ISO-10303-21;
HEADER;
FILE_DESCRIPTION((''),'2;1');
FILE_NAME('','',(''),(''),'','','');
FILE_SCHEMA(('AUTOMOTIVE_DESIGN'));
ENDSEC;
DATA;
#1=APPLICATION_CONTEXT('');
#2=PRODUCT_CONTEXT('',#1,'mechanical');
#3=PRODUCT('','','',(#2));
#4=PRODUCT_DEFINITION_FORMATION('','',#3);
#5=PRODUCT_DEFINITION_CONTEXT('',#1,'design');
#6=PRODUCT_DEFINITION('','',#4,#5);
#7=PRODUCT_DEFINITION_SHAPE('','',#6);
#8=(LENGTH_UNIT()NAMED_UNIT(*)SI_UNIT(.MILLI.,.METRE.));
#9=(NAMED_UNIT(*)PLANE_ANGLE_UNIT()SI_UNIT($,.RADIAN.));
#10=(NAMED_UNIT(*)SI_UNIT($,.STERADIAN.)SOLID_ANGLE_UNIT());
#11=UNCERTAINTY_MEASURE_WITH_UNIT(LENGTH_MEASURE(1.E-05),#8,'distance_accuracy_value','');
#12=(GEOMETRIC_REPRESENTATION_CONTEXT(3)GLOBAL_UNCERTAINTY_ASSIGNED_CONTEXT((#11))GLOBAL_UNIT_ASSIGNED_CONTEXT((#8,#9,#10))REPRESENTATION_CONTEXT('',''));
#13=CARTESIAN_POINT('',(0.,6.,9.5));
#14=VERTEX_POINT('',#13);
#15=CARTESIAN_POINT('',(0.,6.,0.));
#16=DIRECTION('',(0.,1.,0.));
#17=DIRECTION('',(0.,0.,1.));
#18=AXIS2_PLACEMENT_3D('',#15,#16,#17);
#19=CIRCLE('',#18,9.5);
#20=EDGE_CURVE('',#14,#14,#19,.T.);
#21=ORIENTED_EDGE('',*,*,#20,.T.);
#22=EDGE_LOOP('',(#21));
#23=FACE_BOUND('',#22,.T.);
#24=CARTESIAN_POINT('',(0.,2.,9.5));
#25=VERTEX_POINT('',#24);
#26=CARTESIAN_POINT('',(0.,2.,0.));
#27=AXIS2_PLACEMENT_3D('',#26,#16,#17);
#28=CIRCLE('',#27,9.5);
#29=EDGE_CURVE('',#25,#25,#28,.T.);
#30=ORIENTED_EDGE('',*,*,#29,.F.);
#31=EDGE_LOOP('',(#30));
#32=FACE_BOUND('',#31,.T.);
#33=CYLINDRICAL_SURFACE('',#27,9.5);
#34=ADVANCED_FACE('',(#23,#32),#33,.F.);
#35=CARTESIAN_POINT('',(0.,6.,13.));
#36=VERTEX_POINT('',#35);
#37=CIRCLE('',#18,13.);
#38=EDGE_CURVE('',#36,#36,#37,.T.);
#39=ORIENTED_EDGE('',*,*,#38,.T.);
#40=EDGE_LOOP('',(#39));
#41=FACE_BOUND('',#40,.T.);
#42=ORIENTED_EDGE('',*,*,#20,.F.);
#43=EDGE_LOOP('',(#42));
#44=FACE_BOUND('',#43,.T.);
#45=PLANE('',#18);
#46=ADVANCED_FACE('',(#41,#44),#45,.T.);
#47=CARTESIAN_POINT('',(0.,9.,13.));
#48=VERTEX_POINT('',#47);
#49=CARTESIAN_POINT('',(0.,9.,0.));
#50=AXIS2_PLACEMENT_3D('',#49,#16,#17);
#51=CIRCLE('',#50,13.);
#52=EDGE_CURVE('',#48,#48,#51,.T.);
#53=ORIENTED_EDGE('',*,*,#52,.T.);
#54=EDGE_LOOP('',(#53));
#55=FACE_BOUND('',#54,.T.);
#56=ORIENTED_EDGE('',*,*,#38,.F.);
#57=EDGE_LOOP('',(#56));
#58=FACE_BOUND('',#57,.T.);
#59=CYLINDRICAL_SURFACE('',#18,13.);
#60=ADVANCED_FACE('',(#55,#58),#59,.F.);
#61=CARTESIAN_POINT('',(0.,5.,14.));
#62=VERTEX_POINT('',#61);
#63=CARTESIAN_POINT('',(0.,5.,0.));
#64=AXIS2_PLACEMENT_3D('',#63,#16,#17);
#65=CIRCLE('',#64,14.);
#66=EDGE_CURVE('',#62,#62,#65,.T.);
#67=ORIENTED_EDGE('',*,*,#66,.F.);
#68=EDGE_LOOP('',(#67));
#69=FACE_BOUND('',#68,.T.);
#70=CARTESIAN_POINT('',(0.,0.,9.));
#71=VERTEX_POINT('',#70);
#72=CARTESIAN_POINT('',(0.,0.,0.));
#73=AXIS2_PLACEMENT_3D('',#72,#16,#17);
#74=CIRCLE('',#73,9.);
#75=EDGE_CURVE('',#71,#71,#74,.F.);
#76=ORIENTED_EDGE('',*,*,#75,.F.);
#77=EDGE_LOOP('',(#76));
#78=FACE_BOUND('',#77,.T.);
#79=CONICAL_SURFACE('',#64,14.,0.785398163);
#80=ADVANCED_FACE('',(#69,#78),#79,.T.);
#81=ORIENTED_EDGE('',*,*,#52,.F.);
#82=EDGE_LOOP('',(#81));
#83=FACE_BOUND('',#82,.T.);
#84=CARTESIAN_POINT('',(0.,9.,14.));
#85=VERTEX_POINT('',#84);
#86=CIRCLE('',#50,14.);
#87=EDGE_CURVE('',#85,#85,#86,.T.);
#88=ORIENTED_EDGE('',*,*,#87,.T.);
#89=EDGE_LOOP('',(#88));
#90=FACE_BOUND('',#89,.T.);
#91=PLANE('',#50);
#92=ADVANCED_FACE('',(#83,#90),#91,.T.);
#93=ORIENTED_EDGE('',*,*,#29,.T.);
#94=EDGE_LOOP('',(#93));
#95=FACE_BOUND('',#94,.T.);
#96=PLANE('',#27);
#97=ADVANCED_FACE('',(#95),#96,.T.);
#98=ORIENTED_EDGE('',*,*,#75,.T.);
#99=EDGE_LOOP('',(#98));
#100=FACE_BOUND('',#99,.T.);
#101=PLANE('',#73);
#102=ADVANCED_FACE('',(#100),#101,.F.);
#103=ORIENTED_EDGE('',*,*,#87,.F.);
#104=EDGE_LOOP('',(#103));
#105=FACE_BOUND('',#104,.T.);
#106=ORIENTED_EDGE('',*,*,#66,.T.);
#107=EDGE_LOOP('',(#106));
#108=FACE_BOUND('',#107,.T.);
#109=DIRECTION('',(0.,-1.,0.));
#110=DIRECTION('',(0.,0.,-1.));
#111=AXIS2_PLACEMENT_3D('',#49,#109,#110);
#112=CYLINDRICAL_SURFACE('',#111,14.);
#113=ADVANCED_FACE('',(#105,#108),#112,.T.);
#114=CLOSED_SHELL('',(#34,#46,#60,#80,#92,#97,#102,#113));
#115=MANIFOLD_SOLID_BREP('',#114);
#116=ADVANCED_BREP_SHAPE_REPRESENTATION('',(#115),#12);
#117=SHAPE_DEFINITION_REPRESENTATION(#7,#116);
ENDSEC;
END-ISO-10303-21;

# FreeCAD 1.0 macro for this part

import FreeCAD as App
import Part
import Sketcher


def edges_at(feature, points):
    """Names of the edges that pass closest to the given points."""
    edges = feature.Shape.Edges
    near = lambda p: min(range(len(edges)), key=lambda i: edges[i].distToShape(Part.Vertex(*p))[0])
    return sorted({f"Edge{near(p) + 1}" for p in points})

doc = App.newDocument("Part")
params = doc.addObject("Spreadsheet::Sheet", "Params")
for row, (alias, value) in enumerate([
    ("sketch1_diameter", "28 mm"),
    ("pad1_length", "9 mm"),
    ("sketch2_diameter", "26 mm"),
    ("pocket1_length", "3 mm"),
    ("sketch3_diameter", "19 mm"),
    ("pocket2_length", "4 mm"),
    ("chamfer_size", "5 mm"),
], start=1):
    params.set(f"A{row}", alias)
    params.set(f"B{row}", "=" + value)
    params.setAlias(f"B{row}", alias)

body = doc.addObject("PartDesign::Body", "Body")

sketch1 = body.newObject("Sketcher::SketchObject", "Sketch")
sketch1.AttachmentSupport = (doc.getObject("XZ_Plane"), [""])
sketch1.MapMode = "FlatFace"
sketch1.addGeometry(Part.Circle(App.Vector(0, 0, 0), App.Vector(0, 0, 1), 14), False)
sketch1.addConstraint([
    Sketcher.Constraint("Coincident", 0, 3, -1, 1),
    Sketcher.Constraint("Diameter", 0, 28.0),
])
sketch1.setExpression("Constraints[1]", "Params.sketch1_diameter")
pad1 = body.newObject("PartDesign::Pad", "Pad")
pad1.Profile = sketch1
pad1.setExpression("Length", "Params.pad1_length")
pad1.Reversed = True

sketch2 = body.newObject("Sketcher::SketchObject", "Sketch001")
sketch2.AttachmentSupport = (doc.getObject("XZ_Plane"), [""])
sketch2.MapMode = "FlatFace"
sketch2.AttachmentOffset = App.Placement(App.Vector(0, 0, -9), App.Rotation())
sketch2.addGeometry(Part.Circle(App.Vector(0, 0, 0), App.Vector(0, 0, 1), 13), False)
sketch2.addConstraint([
    Sketcher.Constraint("Coincident", 0, 3, -1, 1),
    Sketcher.Constraint("Diameter", 0, 26.0),
])
sketch2.setExpression("Constraints[1]", "Params.sketch2_diameter")
pocket1 = body.newObject("PartDesign::Pocket", "Pocket")
pocket1.Profile = sketch2
pocket1.setExpression("Length", "Params.pocket1_length")
pocket1.Reversed = True

sketch3 = body.newObject("Sketcher::SketchObject", "Sketch002")
sketch3.AttachmentSupport = (doc.getObject("XZ_Plane"), [""])
sketch3.MapMode = "FlatFace"
sketch3.AttachmentOffset = App.Placement(App.Vector(0, 0, -6), App.Rotation())
sketch3.addGeometry(Part.Circle(App.Vector(0, 0, 0), App.Vector(0, 0, 1), 10), False)
sketch3.addConstraint([
    Sketcher.Constraint("Coincident", 0, 3, -1, 1),
    Sketcher.Constraint("Diameter", 0, 19.0),
])
sketch3.setExpression("Constraints[1]", "Params.sketch3_diameter")
pocket2 = body.newObject("PartDesign::Pocket", "Pocket001")
pocket2.Profile = sketch3
pocket2.setExpression("Length", "Params.pocket2_length")
pocket2.Reversed = True
doc.recompute()

chamfer = body.newObject("PartDesign::Chamfer", "Chamfer")
chamfer.Base = (pocket2, edges_at(pocket2, [(0, 0, -14)]))
chamfer.setExpression("Size", "Params.chamfer_size")

doc.recompute()
